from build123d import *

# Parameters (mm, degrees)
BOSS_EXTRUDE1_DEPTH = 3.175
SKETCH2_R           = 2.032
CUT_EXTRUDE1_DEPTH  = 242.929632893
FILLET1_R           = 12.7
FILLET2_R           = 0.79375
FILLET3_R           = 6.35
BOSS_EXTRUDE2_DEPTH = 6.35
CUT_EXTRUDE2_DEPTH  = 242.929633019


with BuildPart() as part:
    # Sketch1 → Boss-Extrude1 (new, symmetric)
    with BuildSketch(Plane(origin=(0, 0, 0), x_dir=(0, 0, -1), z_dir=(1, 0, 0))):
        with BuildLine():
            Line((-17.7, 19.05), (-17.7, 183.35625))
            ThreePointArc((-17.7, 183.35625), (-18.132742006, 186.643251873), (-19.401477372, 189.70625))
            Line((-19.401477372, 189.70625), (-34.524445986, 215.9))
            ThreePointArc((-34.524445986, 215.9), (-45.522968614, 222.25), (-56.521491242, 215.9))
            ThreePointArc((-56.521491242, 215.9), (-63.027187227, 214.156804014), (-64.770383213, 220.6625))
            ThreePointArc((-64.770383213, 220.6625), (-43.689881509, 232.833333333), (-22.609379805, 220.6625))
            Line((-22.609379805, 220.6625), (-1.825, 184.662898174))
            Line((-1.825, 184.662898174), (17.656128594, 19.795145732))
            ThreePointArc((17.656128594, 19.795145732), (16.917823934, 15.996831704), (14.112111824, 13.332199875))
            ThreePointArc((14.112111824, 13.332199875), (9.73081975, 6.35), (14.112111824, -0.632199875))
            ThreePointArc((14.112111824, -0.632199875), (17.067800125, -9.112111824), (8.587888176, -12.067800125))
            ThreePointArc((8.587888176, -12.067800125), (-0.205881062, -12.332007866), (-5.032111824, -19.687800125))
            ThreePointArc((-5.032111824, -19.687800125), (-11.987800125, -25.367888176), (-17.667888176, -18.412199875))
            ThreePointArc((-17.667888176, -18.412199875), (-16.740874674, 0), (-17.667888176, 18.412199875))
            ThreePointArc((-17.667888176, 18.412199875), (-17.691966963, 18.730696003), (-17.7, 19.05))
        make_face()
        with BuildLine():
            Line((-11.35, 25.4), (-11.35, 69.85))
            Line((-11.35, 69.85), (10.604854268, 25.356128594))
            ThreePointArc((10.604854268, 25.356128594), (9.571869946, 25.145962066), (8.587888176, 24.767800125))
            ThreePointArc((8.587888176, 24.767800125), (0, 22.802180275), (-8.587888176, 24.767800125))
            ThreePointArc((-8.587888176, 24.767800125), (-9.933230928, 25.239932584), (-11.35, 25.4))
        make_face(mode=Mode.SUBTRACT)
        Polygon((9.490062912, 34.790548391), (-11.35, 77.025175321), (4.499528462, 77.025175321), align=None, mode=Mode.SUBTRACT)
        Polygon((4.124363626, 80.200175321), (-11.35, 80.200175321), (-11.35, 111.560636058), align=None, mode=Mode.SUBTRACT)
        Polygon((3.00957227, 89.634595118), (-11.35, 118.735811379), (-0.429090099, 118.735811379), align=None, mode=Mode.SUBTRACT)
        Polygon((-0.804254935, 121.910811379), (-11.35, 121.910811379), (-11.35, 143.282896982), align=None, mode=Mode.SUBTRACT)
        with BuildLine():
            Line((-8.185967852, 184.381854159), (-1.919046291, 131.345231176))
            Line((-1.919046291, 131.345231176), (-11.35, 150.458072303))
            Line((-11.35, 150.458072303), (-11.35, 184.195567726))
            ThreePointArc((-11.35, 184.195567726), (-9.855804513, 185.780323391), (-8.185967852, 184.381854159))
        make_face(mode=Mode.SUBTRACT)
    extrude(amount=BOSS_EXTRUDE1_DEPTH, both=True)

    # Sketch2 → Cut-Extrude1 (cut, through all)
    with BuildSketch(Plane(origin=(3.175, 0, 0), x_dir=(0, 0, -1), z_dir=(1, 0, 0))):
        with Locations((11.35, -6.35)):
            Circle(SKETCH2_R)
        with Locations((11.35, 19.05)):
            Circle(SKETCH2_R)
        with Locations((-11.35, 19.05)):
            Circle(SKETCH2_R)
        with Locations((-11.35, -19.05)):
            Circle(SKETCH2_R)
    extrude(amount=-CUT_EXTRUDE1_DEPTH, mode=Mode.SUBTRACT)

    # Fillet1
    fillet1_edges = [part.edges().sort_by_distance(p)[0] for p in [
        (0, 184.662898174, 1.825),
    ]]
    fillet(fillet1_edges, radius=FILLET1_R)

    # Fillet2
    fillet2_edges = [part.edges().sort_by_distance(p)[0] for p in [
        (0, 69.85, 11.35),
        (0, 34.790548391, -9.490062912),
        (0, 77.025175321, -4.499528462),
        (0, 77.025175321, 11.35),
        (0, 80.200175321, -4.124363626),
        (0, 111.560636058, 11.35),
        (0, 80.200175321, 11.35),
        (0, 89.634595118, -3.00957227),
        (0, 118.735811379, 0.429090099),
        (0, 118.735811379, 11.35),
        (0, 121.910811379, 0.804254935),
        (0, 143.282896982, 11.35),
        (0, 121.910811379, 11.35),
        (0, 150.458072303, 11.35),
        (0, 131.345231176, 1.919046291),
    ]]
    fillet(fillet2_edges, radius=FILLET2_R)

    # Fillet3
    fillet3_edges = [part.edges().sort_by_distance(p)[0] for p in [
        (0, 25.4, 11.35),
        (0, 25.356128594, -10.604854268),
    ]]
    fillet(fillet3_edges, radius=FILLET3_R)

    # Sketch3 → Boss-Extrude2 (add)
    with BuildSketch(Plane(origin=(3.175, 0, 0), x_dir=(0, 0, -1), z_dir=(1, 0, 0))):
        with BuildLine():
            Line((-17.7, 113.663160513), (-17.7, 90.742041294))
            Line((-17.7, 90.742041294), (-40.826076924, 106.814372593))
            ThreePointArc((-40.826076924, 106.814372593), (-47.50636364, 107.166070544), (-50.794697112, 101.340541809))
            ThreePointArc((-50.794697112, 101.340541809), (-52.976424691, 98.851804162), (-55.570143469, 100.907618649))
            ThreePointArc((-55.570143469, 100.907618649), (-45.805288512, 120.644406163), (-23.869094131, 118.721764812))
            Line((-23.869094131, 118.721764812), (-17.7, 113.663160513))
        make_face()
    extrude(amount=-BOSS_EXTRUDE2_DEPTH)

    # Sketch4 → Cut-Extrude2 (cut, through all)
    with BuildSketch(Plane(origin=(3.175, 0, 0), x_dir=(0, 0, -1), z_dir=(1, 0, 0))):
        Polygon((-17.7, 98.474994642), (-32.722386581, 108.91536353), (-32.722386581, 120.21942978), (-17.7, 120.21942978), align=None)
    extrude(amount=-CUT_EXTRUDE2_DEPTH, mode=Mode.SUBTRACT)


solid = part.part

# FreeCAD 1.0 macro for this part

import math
import FreeCAD as App
import Part
import Sketcher

V = App.Vector
Q = App.Units.Quantity


def edges_at(feature, points):
    """Names of the edges that pass closest to the given points."""
    edges = feature.Shape.Edges
    near = lambda p: min(range(len(edges)), key=lambda i: edges[i].distToShape(Part.Vertex(*p))[0])
    return sorted({f"Edge{near(p) + 1}" for p in points})


def add_polygon(sketch, points):
    """Adds a closed chain of lines whose ends are joined by coincident constraints."""
    first, n = sketch.GeometryCount, len(points)
    for a, b in zip(points, points[1:] + points[:1]):
        sketch.addGeometry(Part.LineSegment(App.Vector(*a, 0), App.Vector(*b, 0)), False)
    for i in range(n):
        sketch.addConstraint(Sketcher.Constraint("Coincident", first + i, 2, first + (i + 1) % n, 1))

doc = App.newDocument("Part")
body = doc.addObject("PartDesign::Body", "Body")

# Sketch on YZ plane
sketch1 = body.newObject("Sketcher::SketchObject", "Sketch")
sketch1.AttachmentSupport = (doc.getObject("YZ_Plane"), [""])
sketch1.MapMode = "FlatFace"
sketch1.addGeometry(Part.LineSegment(V(183.35625, 17.7, 0), V(19.05, 17.7, 0)), False)  # 0
sketch1.addGeometry(Part.ArcOfCircle(Part.Circle(V(19.05, 11.35, 0), V(0, 0, 1), 6.35), math.radians(90), math.radians(95.764564)), False)  # 1
sketch1.addGeometry(Part.ArcOfCircle(Part.Circle(V(0, 200.054525, 0), V(0, 0, 1), 183.313651), math.radians(-95.764564), math.radians(-84.235436)), False)  # 2
sketch1.addGeometry(Part.ArcOfCircle(Part.Circle(V(-19.05, 11.35, 0), V(0, 0, 1), 6.35), math.radians(84.235436), math.radians(264.235436)), False)  # 3
sketch1.addGeometry(Part.ArcOfCircle(Part.Circle(V(-20.6445, -4.44472, 0), V(0, 0, 1), 9.525), math.radians(-25.783909), math.radians(84.235436)), False)  # 4
sketch1.addGeometry(Part.ArcOfCircle(Part.Circle(V(-6.35, -11.35, 0), V(0, 0, 1), 6.35), math.radians(154.216091), math.radians(334.216091)), False)  # 5
sketch1.addGeometry(Part.ArcOfCircle(Part.Circle(V(6.35, -17.48502, 0), V(0, 0, 1), 7.754201), math.radians(25.783909), math.radians(154.216091)), False)  # 6
sketch1.addGeometry(Part.ArcOfCircle(Part.Circle(V(19.05, -11.35, 0), V(0, 0, 1), 6.35), math.radians(-154.216091), math.radians(-83.261055)), False)  # 7
sketch1.addGeometry(Part.LineSegment(V(19.795146, -17.656129, 0), V(184.662898, 1.825, 0)), False)  # 8
sketch1.addGeometry(Part.LineSegment(V(184.662898, 1.825, 0), V(220.6625, 22.60938, 0)), False)  # 9
sketch1.addGeometry(Part.ArcOfCircle(Part.Circle(V(208.491667, 43.689882, 0), V(0, 0, 1), 24.341667), math.radians(-60), math.radians(60)), False)  # 10
sketch1.addGeometry(Part.ArcOfCircle(Part.Circle(V(218.28125, 60.645937, 0), V(0, 0, 1), 4.7625), math.radians(60), math.radians(240)), False)  # 11
sketch1.addGeometry(Part.ArcOfCircle(Part.Circle(V(209.55, 45.522969, 0), V(0, 0, 1), 12.7), math.radians(-60), math.radians(60)), False)  # 12
sketch1.addGeometry(Part.LineSegment(V(215.9, 34.524446, 0), V(189.70625, 19.401477, 0)), False)  # 13
sketch1.addGeometry(Part.ArcOfCircle(Part.Circle(V(183.35625, 30.4, 0), V(0, 0, 1), 12.7), math.radians(-90), math.radians(-60)), False)  # 14
sketch1.addGeometry(Part.LineSegment(V(25.4, 11.35, 0), V(69.85, 11.35, 0)), False)  # 15
sketch1.addGeometry(Part.LineSegment(V(69.85, 11.35, 0), V(25.356129, -10.604854, 0)), False)  # 16
sketch1.addGeometry(Part.ArcOfCircle(Part.Circle(V(19.05, -11.35, 0), V(0, 0, 1), 6.35), math.radians(6.738945), math.radians(25.783909)), False)  # 17
sketch1.addGeometry(Part.ArcOfCircle(Part.Circle(V(42.54544, 0, 0), V(0, 0, 1), 19.743259), math.radians(154.216091), math.radians(205.783909)), False)  # 18
sketch1.addGeometry(Part.ArcOfCircle(Part.Circle(V(19.05, 11.35, 0), V(0, 0, 1), 6.35), math.radians(-25.783909), math.radians(0)), False)  # 19
add_polygon(sketch1, [(34.790548, -9.490063), (77.025175, 11.35), (77.025175, -4.499528)])  # lines 20-22
add_polygon(sketch1, [(80.200175, -4.124364), (80.200175, 11.35), (111.560636, 11.35)])  # lines 23-25
add_polygon(sketch1, [(89.634595, -3.009572), (118.735811, 11.35), (118.735811, 0.42909)])  # lines 26-28
add_polygon(sketch1, [(121.910811, 0.804255), (121.910811, 11.35), (143.282897, 11.35)])  # lines 29-31
sketch1.addGeometry(Part.LineSegment(V(184.381854, 8.185968, 0), V(131.345231, 1.919046, 0)), False)  # 32
sketch1.addGeometry(Part.LineSegment(V(131.345231, 1.919046, 0), V(150.458072, 11.35, 0)), False)  # 33
sketch1.addGeometry(Part.LineSegment(V(150.458072, 11.35, 0), V(184.195568, 11.35, 0)), False)  # 34
sketch1.addGeometry(Part.ArcOfCircle(Part.Circle(V(184.195568, 9.7625, 0), V(0, 0, 1), 1.5875), math.radians(-83.261055), math.radians(90)), False)  # 35
sketch1.addConstraint([
    Sketcher.Constraint("Tangent", 0, 2, 1, 1),
    Sketcher.Constraint("Tangent", 1, 2, 2, 2),
    Sketcher.Constraint("Tangent", 2, 1, 3, 1),
    Sketcher.Constraint("Tangent", 3, 2, 4, 2),
    Sketcher.Constraint("Tangent", 4, 1, 5, 1),
    Sketcher.Constraint("Tangent", 5, 2, 6, 2),
    Sketcher.Constraint("Tangent", 6, 1, 7, 1),
    Sketcher.Constraint("Tangent", 7, 2, 8, 1),
    Sketcher.Constraint("Coincident", 8, 2, 9, 1),
    Sketcher.Constraint("Tangent", 9, 2, 10, 1),
    Sketcher.Constraint("Tangent", 10, 2, 11, 1),
    Sketcher.Constraint("Tangent", 11, 2, 12, 2),
    Sketcher.Constraint("Tangent", 12, 1, 13, 1),
    Sketcher.Constraint("Tangent", 13, 2, 14, 2),
    Sketcher.Constraint("Tangent", 14, 1, 0, 1),
    Sketcher.Constraint("Coincident", 15, 2, 16, 1),
    Sketcher.Constraint("Coincident", 16, 2, 17, 1),
    Sketcher.Constraint("Tangent", 17, 2, 18, 2),
    Sketcher.Constraint("Tangent", 18, 1, 19, 1),
    Sketcher.Constraint("Coincident", 19, 2, 15, 1),
    Sketcher.Constraint("Coincident", 32, 2, 33, 1),
    Sketcher.Constraint("Coincident", 33, 2, 34, 1),
    Sketcher.Constraint("Tangent", 34, 2, 35, 2),
    Sketcher.Constraint("Tangent", 35, 1, 32, 1),
    Sketcher.Constraint("Horizontal", 0),
    Sketcher.Constraint("Horizontal", 15),
    Sketcher.Constraint("Vertical", 21),
    Sketcher.Constraint("Vertical", 23),
    Sketcher.Constraint("Horizontal", 24),
    Sketcher.Constraint("Vertical", 27),
    Sketcher.Constraint("Vertical", 29),
    Sketcher.Constraint("Horizontal", 30),
    Sketcher.Constraint("Horizontal", 34),
    Sketcher.Constraint("Coincident", 17, 3, 7, 3),
    Sketcher.Constraint("Coincident", 19, 3, 1, 3),
    Sketcher.Constraint("Equal", 1, 3),
    Sketcher.Constraint("Equal", 3, 5),
    Sketcher.Constraint("Equal", 5, 7),
    Sketcher.Constraint("Equal", 12, 14),
    Sketcher.Constraint("Equal", 7, 17),
    Sketcher.Constraint("Equal", 17, 19),
    Sketcher.Constraint("Symmetric", 3, 3, 7, 3, -1, 1),
    Sketcher.Constraint("Symmetric", 1, 3, 3, 3, -2),
    Sketcher.Constraint("Parallel", 9, 13),
    Sketcher.Constraint("Parallel", 16, 20),
    Sketcher.Constraint("Parallel", 8, 22),
    Sketcher.Constraint("Parallel", 20, 25),
    Sketcher.Constraint("Parallel", 25, 26),
    Sketcher.Constraint("Parallel", 22, 28),
    Sketcher.Constraint("Parallel", 26, 31),
    Sketcher.Constraint("Parallel", 28, 32),
    Sketcher.Constraint("Parallel", 31, 33),
    Sketcher.Constraint("Horizontal", 5, 3, 7, 3),
    Sketcher.Constraint("Horizontal", 19, 3, 15, 2),
    Sketcher.Constraint("Horizontal", 4, 1, 17, 2),
    Sketcher.Constraint("Horizontal", 19, 2, 20, 2),
    Sketcher.Constraint("Horizontal", 20, 2, 23, 2),
    Sketcher.Constraint("Horizontal", 24, 2, 26, 2),
    Sketcher.Constraint("Horizontal", 26, 2, 29, 2),
    Sketcher.Constraint("Horizontal", 30, 2, 33, 2),
    Sketcher.Constraint("Vertical", 9, 2, 10, 2),
    Sketcher.Constraint("Vertical", 11, 2, 12, 1),
    Sketcher.Constraint("Radius", 12, Q("0.5 in")),
    Sketcher.Constraint("Radius", 1, Q("0.25 in")),
    Sketcher.Constraint("DistanceX", -1, 1, 19, 2, Q("1 in")),
    Sketcher.Constraint("Angle", 9, Q("30 deg")),
    Sketcher.Constraint("Radius", 4, Q("0.375 in")),
    Sketcher.Constraint("Radius", 11, Q("0.1875 in")),
    Sketcher.Constraint("Radius", 35, Q("0.0625 in")),
    Sketcher.Constraint("DistanceX", 5, 3, 1, 3, Q("1 in")),
    Sketcher.Constraint("DistanceX", 6, 3, 12, 3, Q("8 in")),
    Sketcher.Constraint("DistanceX", 19, 3, 15, 2, Q("2 in")),
    Sketcher.Constraint("DistanceX", 0, 2, 0, 1, Q("6.46875 in")),
    Sketcher.Constraint("Radius", 6, Q("7.754201 mm")),
    Sketcher.Constraint("Radius", 2, Q("183.313651 mm")),
    Sketcher.Constraint("Radius", 18, Q("19.743259 mm")),
    Sketcher.Constraint("DistanceY", 8, 2, 35, 3, Q("0.3125 in")),
    Sketcher.Constraint("DistanceX", 20, 2, 23, 2, Q("0.125 in")),
    Sketcher.Constraint("DistanceX", 26, 2, 29, 2, Q("0.125 in")),
    Sketcher.Constraint("Radius", 10, Q("24.341667 mm")),
    Sketcher.Constraint("DistanceX", 24, 1, 24, 2, Q("31.360461 mm")),
    Sketcher.Constraint("DistanceY", 21, 2, 21, 1, Q("15.849528 mm")),
    Sketcher.Constraint("DistanceY", 27, 2, 27, 1, Q("10.92091 mm")),
    Sketcher.Constraint("DistanceX", 35, 3, 10, 3, Q("24.296099 mm")),
    Sketcher.Constraint("Distance", 20, Q("47.096411 mm")),
    Sketcher.Constraint("Distance", 33, Q("21.312991 mm")),
    Sketcher.Constraint("DistanceX", 30, 1, 30, 2, Q("21.372086 mm")),
    Sketcher.Constraint("DistanceX", -1, 1, 22, 2, Q("34.790548 mm")),
    Sketcher.Constraint("DistanceX", -1, 1, 26, 2, Q("118.735811 mm")),
])
pad1 = body.newObject("PartDesign::Pad", "Pad")
pad1.Profile = sketch1
pad1.Length = Q("0.25 in")
pad1.Midplane = True

# Sketch on YZ plane
sketch2 = body.newObject("Sketcher::SketchObject", "Sketch001")
sketch2.AttachmentSupport = (doc.getObject("YZ_Plane"), [""])
sketch2.MapMode = "FlatFace"
sketch2.AttachmentOffset = App.Placement(V(0, 0, 0.125 * 25.4), App.Rotation())
sketch2.addGeometry([
    Part.Circle(V(-6.35, -11.35, 0), V(0, 0, 1), 2.032),
    Part.Circle(V(19.05, -11.35, 0), V(0, 0, 1), 2.032),
    Part.Circle(V(19.05, 11.35, 0), V(0, 0, 1), 2.032),
    Part.Circle(V(-19.05, 11.35, 0), V(0, 0, 1), 2.032),
], False)
sketch2.addConstraint([
    Sketcher.Constraint("Equal", 0, 1),
    Sketcher.Constraint("Equal", 1, 2),
    Sketcher.Constraint("Equal", 2, 3),
    Sketcher.Constraint("Symmetric", 1, 3, 3, 3, -1, 1),
    Sketcher.Constraint("Symmetric", 2, 3, 3, 3, -2),
    Sketcher.Constraint("Horizontal", 0, 3, 1, 3),
    Sketcher.Constraint("Diameter", 0, Q("0.16 in")),
    Sketcher.Constraint("DistanceX", 0, 3, 1, 3, Q("1 in")),
    Sketcher.Constraint("DistanceX", 3, 3, 0, 3, Q("0.5 in")),
    Sketcher.Constraint("DistanceY", 0, 3, -1, 1, Q("11.35 mm")),
])
pocket1 = body.newObject("PartDesign::Pocket", "Pocket")
pocket1.Profile = sketch2
pocket1.Type = "ThroughAll"
doc.recompute()

fillet = body.newObject("PartDesign::Fillet", "Fillet")
fillet.Base = (pocket1, edges_at(pocket1, [(0, 184.663, 1.825)]))
fillet.Radius = Q("0.5 in")
doc.recompute()

fillet2 = body.newObject("PartDesign::Fillet", "Fillet001")
fillet2.Base = (fillet, edges_at(fillet, [
    (0, 69.85, 11.35),
    (0, 34.791, -9.49),
    (0, 77.025, -4.5),
    (0, 77.025, 11.35),
    (0, 80.2, -4.124),
    (0, 111.561, 11.35),
    (0, 80.2, 11.35),
    (0, 89.635, -3.01),
    (0, 118.736, 0.429),
    (0, 118.736, 11.35),
    (0, 121.911, 0.804),
    (0, 143.283, 11.35),
    (0, 121.911, 11.35),
    (0, 150.458, 11.35),
    (0, 131.345, 1.919),
]))
fillet2.Radius = Q("0.03125 in")
doc.recompute()

fillet3 = body.newObject("PartDesign::Fillet", "Fillet002")
fillet3.Base = (fillet2, edges_at(fillet2, [(0, 25.4, 11.35), (0, 25.356, -10.605)]))
fillet3.Radius = Q("0.25 in")

# Sketch on YZ plane
sketch3 = body.newObject("Sketcher::SketchObject", "Sketch002")
sketch3.AttachmentSupport = (doc.getObject("YZ_Plane"), [""])
sketch3.MapMode = "FlatFace"
sketch3.AttachmentOffset = App.Placement(V(0, 0, 0.125 * 25.4), App.Rotation())
sketch3.addGeometry([
    Part.LineSegment(V(90.742041, 17.7, 0), V(113.663161, 17.7, 0)),  # 0
    Part.LineSegment(V(113.663161, 17.7, 0), V(118.721765, 23.869094, 0)),  # 1
    Part.ArcOfCircle(Part.Circle(V(103.630022, 36.244194, 0), V(0, 0, 1), 19.516757), math.radians(-39.351459), math.radians(98.018368)),  # 2
    Part.ArcOfCircle(Part.Circle(V(101.24246, 53.193152, 0), V(0, 0, 1), 2.40046), math.radians(98.018368), math.radians(272.341732)),  # 3
    Part.ArcOfCircle(Part.Circle(V(101.6, 44.45, 0), V(0, 0, 1), 6.35), math.radians(-34.798812), math.radians(92.341732)),  # 4
    Part.LineSegment(V(106.814373, 40.826077, 0), V(90.742041, 17.7, 0)),  # 5
], False)
sketch3.addConstraint([
    Sketcher.Constraint("Coincident", 0, 2, 1, 1),
    Sketcher.Constraint("Tangent", 1, 2, 2, 1),
    Sketcher.Constraint("Tangent", 2, 2, 3, 1),
    Sketcher.Constraint("Tangent", 3, 2, 4, 2),
    Sketcher.Constraint("Tangent", 4, 1, 5, 1),
    Sketcher.Constraint("Coincident", 5, 2, 0, 1),
    Sketcher.Constraint("Horizontal", 0),
    Sketcher.Constraint("Radius", 4, Q("0.25 in")),
    Sketcher.Constraint("DistanceX", -1, 1, 4, 3, Q("4 in")),
    Sketcher.Constraint("DistanceY", -1, 1, 4, 3, Q("1.75 in")),
    Sketcher.Constraint("Radius", 3, Q("2.40046 mm")),
    Sketcher.Constraint("Radius", 2, Q("19.516757 mm")),
    Sketcher.Constraint("DistanceX", 3, 2, 1, 2, Q("0.6843001 in")),
    Sketcher.Constraint("DistanceX", 0, 1, 0, 2, Q("22.921119 mm")),
    Sketcher.Constraint("DistanceY", -1, 1, 0, 2, Q("17.7 mm")),
    Sketcher.Constraint("DistanceX", 3, 3, 0, 2, Q("12.4207 mm")),
    Sketcher.Constraint("DistanceY", 1, 2, 2, 3, Q("12.3751 mm")),
])
pad2 = body.newObject("PartDesign::Pad", "Pad001")
pad2.Profile = sketch3
pad2.Length = Q("0.25 in")
pad2.Reversed = True

# Sketch on YZ plane
sketch4 = body.newObject("Sketcher::SketchObject", "Sketch003")
sketch4.AttachmentSupport = (doc.getObject("YZ_Plane"), [""])
sketch4.MapMode = "FlatFace"
sketch4.AttachmentOffset = App.Placement(V(0, 0, 0.125 * 25.4), App.Rotation())
add_polygon(sketch4, [(108.915364, 32.722387), (98.474995, 17.7), (120.21943, 17.7), (120.21943, 32.722387)])  # lines 0-3
sketch4.addConstraint([
    Sketcher.Constraint("Horizontal", 1),
    Sketcher.Constraint("Vertical", 2),
    Sketcher.Constraint("Horizontal", 3),
    Sketcher.Constraint("DistanceY", -1, 1, 0, 2, Q("17.7 mm")),
    Sketcher.Constraint("Distance", 0, Q("18.294081 mm")),
    Sketcher.Constraint("DistanceX", 1, 1, 1, 2, Q("21.744435 mm")),
    Sketcher.Constraint("DistanceX", 3, 2, 3, 1, Q("11.304066 mm")),
    Sketcher.Constraint("DistanceX", -1, 1, 1, 2, Q("120.21943 mm")),
])
pocket2 = body.newObject("PartDesign::Pocket", "Pocket001")
pocket2.Profile = sketch4
pocket2.Type = "ThroughAll"

doc.recompute()
